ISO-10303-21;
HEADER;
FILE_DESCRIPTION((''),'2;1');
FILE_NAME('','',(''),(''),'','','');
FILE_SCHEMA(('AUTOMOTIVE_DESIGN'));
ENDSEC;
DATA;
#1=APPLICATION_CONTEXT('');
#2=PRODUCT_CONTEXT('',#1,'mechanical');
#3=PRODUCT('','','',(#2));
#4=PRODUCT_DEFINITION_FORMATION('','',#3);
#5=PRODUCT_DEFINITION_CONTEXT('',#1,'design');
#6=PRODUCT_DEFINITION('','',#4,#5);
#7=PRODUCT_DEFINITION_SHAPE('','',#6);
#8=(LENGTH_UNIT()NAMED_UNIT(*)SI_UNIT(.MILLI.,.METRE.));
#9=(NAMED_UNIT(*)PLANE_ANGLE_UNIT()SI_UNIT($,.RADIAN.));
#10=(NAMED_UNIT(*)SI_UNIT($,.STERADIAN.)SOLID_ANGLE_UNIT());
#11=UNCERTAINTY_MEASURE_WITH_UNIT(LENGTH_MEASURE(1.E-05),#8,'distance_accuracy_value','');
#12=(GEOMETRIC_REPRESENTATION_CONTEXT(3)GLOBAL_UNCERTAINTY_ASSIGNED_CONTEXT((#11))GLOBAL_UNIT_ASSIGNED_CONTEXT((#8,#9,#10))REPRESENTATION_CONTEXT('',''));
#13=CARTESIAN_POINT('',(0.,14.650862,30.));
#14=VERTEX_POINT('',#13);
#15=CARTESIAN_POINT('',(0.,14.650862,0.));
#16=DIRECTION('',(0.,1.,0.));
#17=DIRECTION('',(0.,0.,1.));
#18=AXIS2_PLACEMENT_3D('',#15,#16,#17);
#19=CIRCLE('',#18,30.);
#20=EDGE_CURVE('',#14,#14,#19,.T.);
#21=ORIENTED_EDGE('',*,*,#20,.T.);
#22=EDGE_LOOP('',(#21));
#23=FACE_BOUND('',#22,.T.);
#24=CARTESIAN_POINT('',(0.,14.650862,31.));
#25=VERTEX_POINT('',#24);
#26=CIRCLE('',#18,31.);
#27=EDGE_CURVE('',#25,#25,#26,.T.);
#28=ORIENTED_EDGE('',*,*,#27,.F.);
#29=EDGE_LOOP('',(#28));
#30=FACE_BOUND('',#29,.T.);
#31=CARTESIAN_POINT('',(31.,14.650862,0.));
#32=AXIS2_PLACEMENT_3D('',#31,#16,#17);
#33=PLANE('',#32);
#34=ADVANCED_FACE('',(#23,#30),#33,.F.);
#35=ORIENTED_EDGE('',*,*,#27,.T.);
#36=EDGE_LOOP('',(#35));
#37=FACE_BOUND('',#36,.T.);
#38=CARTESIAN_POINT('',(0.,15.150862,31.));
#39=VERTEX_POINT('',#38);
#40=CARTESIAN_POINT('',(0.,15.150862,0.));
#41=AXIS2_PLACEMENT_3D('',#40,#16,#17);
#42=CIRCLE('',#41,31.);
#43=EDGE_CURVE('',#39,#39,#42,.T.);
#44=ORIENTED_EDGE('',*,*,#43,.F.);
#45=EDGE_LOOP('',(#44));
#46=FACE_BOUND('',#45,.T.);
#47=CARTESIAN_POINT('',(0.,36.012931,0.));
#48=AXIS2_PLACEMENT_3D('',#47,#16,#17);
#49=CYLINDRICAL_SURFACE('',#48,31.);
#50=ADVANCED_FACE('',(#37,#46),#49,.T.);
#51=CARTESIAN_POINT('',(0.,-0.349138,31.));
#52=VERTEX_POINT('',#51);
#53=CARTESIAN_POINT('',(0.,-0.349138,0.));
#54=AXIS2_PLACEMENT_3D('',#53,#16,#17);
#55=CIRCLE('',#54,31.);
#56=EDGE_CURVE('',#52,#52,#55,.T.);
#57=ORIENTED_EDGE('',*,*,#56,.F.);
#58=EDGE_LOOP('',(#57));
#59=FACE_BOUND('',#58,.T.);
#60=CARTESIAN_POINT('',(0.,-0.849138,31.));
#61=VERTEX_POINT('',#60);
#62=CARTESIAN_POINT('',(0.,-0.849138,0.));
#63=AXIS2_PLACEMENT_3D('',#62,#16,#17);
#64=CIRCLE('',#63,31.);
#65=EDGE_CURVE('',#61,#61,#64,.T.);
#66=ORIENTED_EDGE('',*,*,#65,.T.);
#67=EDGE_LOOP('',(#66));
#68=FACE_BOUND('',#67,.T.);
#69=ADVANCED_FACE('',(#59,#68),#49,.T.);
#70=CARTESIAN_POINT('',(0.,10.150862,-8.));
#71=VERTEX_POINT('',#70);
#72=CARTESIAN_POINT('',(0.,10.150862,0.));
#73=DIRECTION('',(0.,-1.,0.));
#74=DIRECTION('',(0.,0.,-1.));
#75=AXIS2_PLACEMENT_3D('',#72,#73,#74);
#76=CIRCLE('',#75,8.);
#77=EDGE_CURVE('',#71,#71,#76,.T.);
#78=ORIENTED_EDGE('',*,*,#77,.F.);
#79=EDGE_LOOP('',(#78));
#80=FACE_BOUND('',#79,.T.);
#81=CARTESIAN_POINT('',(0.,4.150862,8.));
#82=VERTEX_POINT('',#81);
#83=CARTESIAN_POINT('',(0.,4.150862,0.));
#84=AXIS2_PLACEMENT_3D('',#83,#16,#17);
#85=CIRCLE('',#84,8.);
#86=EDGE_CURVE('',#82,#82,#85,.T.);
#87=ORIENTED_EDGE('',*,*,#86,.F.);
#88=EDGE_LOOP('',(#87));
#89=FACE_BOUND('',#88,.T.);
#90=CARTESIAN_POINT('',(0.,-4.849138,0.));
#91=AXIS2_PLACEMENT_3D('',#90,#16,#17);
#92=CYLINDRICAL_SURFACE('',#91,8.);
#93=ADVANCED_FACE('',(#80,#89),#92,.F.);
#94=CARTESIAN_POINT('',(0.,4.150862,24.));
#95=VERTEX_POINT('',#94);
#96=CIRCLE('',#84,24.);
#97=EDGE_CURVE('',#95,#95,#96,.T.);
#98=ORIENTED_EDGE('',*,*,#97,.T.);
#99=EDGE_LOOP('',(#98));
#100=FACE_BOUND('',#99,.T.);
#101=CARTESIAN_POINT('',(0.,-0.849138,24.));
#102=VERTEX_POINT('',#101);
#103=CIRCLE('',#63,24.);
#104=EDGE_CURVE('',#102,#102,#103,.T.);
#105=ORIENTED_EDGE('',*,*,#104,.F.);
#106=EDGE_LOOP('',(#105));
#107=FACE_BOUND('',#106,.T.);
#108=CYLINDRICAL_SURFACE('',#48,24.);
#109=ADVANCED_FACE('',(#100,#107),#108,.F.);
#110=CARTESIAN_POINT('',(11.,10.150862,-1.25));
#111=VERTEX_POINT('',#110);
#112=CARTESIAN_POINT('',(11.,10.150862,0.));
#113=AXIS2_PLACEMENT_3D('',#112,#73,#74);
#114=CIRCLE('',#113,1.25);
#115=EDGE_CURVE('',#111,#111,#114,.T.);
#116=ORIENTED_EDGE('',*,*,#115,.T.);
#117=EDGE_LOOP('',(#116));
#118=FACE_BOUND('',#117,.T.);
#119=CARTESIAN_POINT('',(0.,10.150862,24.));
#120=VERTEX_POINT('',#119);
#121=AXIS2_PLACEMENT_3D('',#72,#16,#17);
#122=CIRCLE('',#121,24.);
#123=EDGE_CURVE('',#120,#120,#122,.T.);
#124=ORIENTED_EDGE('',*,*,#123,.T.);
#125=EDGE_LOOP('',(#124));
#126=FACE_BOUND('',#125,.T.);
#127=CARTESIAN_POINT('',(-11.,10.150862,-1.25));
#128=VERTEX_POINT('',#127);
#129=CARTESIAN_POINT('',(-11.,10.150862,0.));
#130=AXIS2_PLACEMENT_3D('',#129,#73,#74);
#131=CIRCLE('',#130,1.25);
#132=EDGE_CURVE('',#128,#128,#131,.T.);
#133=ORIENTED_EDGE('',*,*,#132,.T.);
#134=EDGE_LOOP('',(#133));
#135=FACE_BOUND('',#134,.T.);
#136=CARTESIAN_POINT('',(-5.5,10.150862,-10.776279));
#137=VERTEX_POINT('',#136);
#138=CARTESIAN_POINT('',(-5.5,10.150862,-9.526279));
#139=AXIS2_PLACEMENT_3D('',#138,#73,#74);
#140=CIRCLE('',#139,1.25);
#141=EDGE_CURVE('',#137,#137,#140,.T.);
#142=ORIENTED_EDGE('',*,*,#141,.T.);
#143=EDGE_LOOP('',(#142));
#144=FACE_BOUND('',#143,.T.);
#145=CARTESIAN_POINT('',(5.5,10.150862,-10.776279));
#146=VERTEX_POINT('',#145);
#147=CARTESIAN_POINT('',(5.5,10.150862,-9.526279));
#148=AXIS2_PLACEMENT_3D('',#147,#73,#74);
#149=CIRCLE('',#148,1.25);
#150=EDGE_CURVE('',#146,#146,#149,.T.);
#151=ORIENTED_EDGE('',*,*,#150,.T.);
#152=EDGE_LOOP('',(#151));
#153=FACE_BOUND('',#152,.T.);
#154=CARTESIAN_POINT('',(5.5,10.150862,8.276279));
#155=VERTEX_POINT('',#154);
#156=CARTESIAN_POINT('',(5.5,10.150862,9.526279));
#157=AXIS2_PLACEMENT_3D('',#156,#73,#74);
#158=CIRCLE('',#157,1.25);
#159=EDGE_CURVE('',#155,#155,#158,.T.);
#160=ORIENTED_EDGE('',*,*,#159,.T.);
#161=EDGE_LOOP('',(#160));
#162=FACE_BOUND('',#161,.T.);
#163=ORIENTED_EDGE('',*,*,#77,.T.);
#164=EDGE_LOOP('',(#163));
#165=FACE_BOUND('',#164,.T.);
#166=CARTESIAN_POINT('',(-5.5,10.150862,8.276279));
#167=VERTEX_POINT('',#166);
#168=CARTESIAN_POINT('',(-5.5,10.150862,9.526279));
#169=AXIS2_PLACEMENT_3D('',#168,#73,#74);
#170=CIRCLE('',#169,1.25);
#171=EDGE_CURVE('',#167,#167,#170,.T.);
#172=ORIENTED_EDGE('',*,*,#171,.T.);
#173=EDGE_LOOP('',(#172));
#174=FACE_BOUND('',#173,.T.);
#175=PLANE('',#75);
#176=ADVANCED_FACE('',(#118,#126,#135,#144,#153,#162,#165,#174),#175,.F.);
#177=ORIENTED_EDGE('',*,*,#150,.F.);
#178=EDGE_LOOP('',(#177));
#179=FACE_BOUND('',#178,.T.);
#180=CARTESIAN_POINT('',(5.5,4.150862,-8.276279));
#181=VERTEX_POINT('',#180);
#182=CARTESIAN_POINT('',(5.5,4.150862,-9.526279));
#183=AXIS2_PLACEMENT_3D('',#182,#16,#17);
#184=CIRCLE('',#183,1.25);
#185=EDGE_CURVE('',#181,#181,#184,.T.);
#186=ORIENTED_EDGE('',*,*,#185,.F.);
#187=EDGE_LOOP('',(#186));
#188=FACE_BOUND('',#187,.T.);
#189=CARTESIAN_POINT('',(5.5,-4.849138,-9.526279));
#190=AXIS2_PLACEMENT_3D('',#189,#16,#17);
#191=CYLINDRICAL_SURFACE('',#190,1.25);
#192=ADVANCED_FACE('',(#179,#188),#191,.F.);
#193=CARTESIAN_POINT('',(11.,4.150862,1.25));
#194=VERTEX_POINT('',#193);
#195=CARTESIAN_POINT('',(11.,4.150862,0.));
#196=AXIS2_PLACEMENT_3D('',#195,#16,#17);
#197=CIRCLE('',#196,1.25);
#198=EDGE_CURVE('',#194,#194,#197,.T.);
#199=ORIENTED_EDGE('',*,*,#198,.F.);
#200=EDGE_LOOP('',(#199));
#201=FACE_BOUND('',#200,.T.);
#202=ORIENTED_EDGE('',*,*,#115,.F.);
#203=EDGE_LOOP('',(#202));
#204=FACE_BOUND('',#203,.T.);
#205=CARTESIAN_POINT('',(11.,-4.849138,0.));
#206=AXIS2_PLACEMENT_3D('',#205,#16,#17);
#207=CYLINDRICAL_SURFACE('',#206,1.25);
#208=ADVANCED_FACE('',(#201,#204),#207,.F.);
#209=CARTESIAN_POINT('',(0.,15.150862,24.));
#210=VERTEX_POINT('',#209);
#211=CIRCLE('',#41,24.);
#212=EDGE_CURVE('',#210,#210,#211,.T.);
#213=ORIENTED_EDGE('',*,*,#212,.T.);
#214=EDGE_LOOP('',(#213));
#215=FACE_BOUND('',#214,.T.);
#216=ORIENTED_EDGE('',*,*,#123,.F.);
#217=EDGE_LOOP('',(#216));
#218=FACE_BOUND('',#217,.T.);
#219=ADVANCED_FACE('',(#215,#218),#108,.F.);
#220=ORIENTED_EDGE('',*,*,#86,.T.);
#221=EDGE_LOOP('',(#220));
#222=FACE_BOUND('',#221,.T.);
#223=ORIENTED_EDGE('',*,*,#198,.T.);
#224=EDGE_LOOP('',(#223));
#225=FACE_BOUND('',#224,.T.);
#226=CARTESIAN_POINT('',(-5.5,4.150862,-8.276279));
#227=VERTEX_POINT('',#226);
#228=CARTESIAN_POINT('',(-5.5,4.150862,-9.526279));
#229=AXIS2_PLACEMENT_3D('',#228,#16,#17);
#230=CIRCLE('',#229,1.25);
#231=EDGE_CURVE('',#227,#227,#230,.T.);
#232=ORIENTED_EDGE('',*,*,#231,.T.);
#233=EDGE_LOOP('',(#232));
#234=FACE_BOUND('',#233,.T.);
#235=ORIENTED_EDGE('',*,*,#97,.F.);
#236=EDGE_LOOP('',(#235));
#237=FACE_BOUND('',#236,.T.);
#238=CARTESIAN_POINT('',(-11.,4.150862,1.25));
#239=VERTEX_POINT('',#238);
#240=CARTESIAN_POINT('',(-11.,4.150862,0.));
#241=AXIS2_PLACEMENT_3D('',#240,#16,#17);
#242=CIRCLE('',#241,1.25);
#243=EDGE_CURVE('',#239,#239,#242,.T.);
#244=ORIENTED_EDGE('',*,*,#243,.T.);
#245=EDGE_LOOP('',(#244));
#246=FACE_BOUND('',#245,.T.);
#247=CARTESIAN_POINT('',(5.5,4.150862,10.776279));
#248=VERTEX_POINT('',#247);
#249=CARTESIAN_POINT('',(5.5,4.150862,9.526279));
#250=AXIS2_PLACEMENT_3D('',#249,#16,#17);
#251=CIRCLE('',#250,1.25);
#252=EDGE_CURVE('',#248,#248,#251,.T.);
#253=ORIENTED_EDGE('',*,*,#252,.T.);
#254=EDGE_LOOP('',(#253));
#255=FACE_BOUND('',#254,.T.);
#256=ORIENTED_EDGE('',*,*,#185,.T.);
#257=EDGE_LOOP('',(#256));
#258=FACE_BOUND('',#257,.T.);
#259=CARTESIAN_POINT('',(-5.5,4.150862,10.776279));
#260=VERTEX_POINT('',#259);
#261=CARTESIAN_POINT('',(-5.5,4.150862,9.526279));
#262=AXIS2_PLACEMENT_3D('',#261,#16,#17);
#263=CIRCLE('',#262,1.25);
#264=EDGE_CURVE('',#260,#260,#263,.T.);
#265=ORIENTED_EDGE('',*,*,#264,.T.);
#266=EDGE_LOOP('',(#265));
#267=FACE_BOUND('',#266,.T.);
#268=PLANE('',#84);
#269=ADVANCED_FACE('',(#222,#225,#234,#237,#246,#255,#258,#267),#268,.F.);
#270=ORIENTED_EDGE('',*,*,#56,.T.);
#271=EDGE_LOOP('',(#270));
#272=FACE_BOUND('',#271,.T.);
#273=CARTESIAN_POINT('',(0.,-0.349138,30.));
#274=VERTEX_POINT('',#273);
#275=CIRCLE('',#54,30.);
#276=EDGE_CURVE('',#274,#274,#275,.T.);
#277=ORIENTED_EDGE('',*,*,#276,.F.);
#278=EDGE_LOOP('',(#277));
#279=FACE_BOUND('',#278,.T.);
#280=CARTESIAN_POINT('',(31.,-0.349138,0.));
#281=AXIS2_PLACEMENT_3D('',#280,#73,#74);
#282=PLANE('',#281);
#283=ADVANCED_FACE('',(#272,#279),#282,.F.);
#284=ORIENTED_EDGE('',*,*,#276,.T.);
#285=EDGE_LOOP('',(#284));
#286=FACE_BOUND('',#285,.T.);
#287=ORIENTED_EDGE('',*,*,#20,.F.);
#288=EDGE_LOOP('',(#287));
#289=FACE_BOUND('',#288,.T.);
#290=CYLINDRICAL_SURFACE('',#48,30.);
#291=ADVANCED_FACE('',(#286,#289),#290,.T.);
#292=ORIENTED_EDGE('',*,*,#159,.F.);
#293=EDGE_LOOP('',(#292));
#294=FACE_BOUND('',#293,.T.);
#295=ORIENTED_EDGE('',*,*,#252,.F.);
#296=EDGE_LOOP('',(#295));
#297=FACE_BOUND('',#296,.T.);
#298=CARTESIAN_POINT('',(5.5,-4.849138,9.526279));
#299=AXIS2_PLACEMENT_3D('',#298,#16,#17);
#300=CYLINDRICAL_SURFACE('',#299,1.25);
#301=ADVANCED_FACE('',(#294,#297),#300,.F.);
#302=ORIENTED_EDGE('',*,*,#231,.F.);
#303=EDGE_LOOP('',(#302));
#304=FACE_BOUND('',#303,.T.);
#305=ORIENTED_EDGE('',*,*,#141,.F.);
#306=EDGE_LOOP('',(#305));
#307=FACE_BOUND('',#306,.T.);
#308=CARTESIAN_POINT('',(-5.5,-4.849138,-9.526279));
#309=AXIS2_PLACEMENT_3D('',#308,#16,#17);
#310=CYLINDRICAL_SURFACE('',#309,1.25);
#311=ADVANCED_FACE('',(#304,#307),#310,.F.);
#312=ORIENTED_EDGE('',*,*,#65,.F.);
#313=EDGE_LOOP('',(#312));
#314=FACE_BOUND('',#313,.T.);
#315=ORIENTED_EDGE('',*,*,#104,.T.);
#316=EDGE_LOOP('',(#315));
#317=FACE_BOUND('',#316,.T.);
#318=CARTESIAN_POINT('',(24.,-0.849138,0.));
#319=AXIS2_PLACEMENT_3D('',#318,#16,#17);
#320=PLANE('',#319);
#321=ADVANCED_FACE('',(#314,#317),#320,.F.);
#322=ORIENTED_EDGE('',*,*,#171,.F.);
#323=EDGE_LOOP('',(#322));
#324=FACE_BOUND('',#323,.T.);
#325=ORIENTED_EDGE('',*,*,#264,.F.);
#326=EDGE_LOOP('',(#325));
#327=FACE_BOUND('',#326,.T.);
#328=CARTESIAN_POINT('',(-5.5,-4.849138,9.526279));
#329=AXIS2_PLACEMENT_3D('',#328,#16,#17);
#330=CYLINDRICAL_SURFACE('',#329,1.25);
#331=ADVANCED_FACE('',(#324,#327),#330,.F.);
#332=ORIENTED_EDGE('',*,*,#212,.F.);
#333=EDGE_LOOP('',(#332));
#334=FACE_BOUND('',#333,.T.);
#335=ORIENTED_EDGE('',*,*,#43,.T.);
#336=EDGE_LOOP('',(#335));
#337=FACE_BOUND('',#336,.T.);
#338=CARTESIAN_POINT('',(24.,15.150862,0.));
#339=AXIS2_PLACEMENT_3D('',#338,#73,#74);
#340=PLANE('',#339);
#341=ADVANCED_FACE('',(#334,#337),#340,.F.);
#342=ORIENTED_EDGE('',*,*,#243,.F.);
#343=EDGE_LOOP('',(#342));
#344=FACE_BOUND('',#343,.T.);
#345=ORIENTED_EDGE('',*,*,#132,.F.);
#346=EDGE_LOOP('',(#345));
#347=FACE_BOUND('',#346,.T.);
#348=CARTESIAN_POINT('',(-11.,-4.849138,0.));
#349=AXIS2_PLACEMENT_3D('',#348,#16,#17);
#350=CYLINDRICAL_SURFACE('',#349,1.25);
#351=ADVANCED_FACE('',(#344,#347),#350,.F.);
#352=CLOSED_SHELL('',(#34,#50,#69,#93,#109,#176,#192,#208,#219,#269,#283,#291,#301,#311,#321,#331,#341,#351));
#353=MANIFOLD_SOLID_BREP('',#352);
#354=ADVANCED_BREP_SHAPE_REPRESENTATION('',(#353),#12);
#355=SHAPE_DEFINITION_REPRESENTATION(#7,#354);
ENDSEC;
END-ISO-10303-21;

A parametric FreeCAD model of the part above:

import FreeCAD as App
import Part
import Sketcher
from FreeCAD import Vector
Q = App.Units.Quantity


def add_polygon(sketch, points):
    """Adds a closed chain of lines whose ends are joined by coincident constraints."""
    first, n = sketch.GeometryCount, len(points)
    for a, b in zip(points, points[1:] + points[:1]):
        sketch.addGeometry(Part.LineSegment(App.Vector(*a, 0), App.Vector(*b, 0)), False)
    for i in range(n):
        sketch.addConstraint(Sketcher.Constraint("Coincident", first + i, 2, first + (i + 1) % n, 1))

doc = App.newDocument("Part")
body = doc.addObject("PartDesign::Body", "Body")

sketch1 = body.newObject("Sketcher::SketchObject", "Sketch")
sketch1.AttachmentSupport = (doc.getObject("XY_Plane"), [""])
sketch1.MapMode = "FlatFace"
add_polygon(sketch1, [(24, 10.2), (0, 10.2), (0, 4.2), (24, 4.2), (24, -0.8), (31, -0.8), (31, -0.3), (30, -0.3), (30, 14.7), (31, 14.7), (31, 15.2), (24, 15.2)])
sketch1.addConstraint([
    Sketcher.Constraint("Horizontal", 0),
    Sketcher.Constraint("Vertical", 1),
    Sketcher.Constraint("Horizontal", 2),
    Sketcher.Constraint("Vertical", 3),
    Sketcher.Constraint("Horizontal", 4),
    Sketcher.Constraint("Vertical", 5),
    Sketcher.Constraint("Horizontal", 6),
    Sketcher.Constraint("Vertical", 7),
    Sketcher.Constraint("Horizontal", 8),
    Sketcher.Constraint("Vertical", 9),
    Sketcher.Constraint("Horizontal", 10),
    Sketcher.Constraint("Vertical", 11),
    Sketcher.Constraint("PointOnObject", 0, 2, -2),
    Sketcher.Constraint("Vertical", 5, 2, 8, 2),
    Sketcher.Constraint("Vertical", 3, 2, 10, 2),
    Sketcher.Constraint("Equal", 5, 9),
    Sketcher.Constraint("Equal", 3, 11),
    Sketcher.Constraint("DistanceX", 0, 2, 0, 1, Q("24 mm")),
    Sketcher.Constraint("DistanceX", 4, 1, 4, 2, Q("7 mm")),
    Sketcher.Constraint("DistanceX", 6, 2, 6, 1, Q("1 mm")),
    Sketcher.Constraint("DistanceY", 1, 2, 1, 1, Q("6 mm")),
    Sketcher.Constraint("DistanceY", 3, 2, 3, 1, Q("5 mm")),
    Sketcher.Constraint("DistanceY", 7, 1, 7, 2, Q("15 mm")),
    Sketcher.Constraint("DistanceY", -1, 1, 0, 2, Q("10.150862 mm")),
])
revolution = body.newObject("PartDesign::Revolution", "Revolution")
revolution.Profile = sketch1
revolution.ReferenceAxis = (sketch1, ["V_Axis"])
revolution.Angle = 360

sketch2 = body.newObject("Sketcher::SketchObject", "Sketch001")
sketch2.AttachmentSupport = (doc.getObject("XZ_Plane"), [""])
sketch2.MapMode = "FlatFace"
sketch2.AttachmentOffset = App.Placement(Vector(0, 0, -10.150862), App.Rotation())
sketch2.addGeometry([
    Part.Circle(Vector(0, 0, 0), Vector(0, 0, 1), 8),
    Part.Circle(Vector(11, 0, 0), Vector(0, 0, 1), 1.2),
    Part.Circle(Vector(5.5, 9.5, 0), Vector(0, 0, 1), 1.2),
    Part.Circle(Vector(-5.5, 9.5, 0), Vector(0, 0, 1), 1.2),
    Part.Circle(Vector(-11, 0, 0), Vector(0, 0, 1), 1.2),
    Part.Circle(Vector(-5.5, -9.5, 0), Vector(0, 0, 1), 1.2),
    Part.Circle(Vector(5.5, -9.5, 0), Vector(0, 0, 1), 1.2),
], False)
sketch2.addConstraint([
    Sketcher.Constraint("Coincident", 0, 3, -1, 1),
    Sketcher.Constraint("Equal", 1, 2),
    Sketcher.Constraint("Equal", 2, 3),
    Sketcher.Constraint("Equal", 3, 4),
    Sketcher.Constraint("Equal", 4, 5),
    Sketcher.Constraint("Equal", 5, 6),
    Sketcher.Constraint("Symmetric", 1, 3, 4, 3, -1, 1),
    Sketcher.Constraint("Symmetric", 2, 3, 5, 3, -1, 1),
    Sketcher.Constraint("Symmetric", 3, 3, 6, 3, -1, 1),
    Sketcher.Constraint("Symmetric", 2, 3, 3, 3, -2),
    Sketcher.Constraint("PointOnObject", 1, 3, -1),
    Sketcher.Constraint("Diameter", 0, Q("16 mm")),
    Sketcher.Constraint("Diameter", 1, Q("2.5 mm")),
    Sketcher.Constraint("DistanceX", -1, 1, 1, 3, Q("11 mm")),
    Sketcher.Constraint("DistanceX", 3, 3, 2, 3, Q("11 mm")),
    Sketcher.Constraint("DistanceY", -1, 1, 2, 3, Q("9.526279 mm")),
])
pocket1 = body.newObject("PartDesign::Pocket", "Pocket")
pocket1.Profile = sketch2
pocket1.Length = 30
pocket1.Midplane = True

doc.recompute()
